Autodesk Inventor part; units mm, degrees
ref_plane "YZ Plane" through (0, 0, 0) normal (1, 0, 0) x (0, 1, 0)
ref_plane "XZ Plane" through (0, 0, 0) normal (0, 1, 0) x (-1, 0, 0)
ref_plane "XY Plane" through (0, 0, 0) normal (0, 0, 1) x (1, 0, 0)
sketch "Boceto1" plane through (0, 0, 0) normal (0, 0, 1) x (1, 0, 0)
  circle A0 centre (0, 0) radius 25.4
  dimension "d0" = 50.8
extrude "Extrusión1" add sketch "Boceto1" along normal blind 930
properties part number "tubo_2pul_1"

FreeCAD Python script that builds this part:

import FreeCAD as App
import Part
import Sketcher
from FreeCAD import Vector
Q = App.Units.Quantity

doc = App.newDocument("Part")
params = doc.addObject("Spreadsheet::Sheet", "Params")
for row, (alias, value) in enumerate([
    ("sketch1_diameter", "50.8 mm"),
    ("pad1_length", "930 mm"),
], start=1):
    params.set(f"A{row}", alias)
    params.set(f"B{row}", "=" + value)
    params.setAlias(f"B{row}", alias)

body = doc.addObject("PartDesign::Body", "Body")

# Sketch on XY plane
sketch1 = doc.addObject("Sketcher::SketchObject", "Sketch")
body.addObject(sketch1)
sketch1.AttachmentSupport = (doc.XY_Plane, [""])
sketch1.MapMode = "FlatFace"
sketch1.addGeometry(Part.Circle(Vector(0, 0, 0), Vector(0, 0, 1), 25.4), False)
sketch1.addConstraint(Sketcher.Constraint("Coincident", 0, 3, -1, 1))
sketch1.addConstraint(Sketcher.Constraint("Diameter", 0, Q("50.8 mm")))
sketch1.setExpression("Constraints[1]", "Params.sketch1_diameter")
pad1 = doc.addObject("PartDesign::Pad", "Pad")
body.addObject(pad1)
pad1.Profile = sketch1
pad1.setExpression("Length", "Params.pad1_length")

doc.recompute()
